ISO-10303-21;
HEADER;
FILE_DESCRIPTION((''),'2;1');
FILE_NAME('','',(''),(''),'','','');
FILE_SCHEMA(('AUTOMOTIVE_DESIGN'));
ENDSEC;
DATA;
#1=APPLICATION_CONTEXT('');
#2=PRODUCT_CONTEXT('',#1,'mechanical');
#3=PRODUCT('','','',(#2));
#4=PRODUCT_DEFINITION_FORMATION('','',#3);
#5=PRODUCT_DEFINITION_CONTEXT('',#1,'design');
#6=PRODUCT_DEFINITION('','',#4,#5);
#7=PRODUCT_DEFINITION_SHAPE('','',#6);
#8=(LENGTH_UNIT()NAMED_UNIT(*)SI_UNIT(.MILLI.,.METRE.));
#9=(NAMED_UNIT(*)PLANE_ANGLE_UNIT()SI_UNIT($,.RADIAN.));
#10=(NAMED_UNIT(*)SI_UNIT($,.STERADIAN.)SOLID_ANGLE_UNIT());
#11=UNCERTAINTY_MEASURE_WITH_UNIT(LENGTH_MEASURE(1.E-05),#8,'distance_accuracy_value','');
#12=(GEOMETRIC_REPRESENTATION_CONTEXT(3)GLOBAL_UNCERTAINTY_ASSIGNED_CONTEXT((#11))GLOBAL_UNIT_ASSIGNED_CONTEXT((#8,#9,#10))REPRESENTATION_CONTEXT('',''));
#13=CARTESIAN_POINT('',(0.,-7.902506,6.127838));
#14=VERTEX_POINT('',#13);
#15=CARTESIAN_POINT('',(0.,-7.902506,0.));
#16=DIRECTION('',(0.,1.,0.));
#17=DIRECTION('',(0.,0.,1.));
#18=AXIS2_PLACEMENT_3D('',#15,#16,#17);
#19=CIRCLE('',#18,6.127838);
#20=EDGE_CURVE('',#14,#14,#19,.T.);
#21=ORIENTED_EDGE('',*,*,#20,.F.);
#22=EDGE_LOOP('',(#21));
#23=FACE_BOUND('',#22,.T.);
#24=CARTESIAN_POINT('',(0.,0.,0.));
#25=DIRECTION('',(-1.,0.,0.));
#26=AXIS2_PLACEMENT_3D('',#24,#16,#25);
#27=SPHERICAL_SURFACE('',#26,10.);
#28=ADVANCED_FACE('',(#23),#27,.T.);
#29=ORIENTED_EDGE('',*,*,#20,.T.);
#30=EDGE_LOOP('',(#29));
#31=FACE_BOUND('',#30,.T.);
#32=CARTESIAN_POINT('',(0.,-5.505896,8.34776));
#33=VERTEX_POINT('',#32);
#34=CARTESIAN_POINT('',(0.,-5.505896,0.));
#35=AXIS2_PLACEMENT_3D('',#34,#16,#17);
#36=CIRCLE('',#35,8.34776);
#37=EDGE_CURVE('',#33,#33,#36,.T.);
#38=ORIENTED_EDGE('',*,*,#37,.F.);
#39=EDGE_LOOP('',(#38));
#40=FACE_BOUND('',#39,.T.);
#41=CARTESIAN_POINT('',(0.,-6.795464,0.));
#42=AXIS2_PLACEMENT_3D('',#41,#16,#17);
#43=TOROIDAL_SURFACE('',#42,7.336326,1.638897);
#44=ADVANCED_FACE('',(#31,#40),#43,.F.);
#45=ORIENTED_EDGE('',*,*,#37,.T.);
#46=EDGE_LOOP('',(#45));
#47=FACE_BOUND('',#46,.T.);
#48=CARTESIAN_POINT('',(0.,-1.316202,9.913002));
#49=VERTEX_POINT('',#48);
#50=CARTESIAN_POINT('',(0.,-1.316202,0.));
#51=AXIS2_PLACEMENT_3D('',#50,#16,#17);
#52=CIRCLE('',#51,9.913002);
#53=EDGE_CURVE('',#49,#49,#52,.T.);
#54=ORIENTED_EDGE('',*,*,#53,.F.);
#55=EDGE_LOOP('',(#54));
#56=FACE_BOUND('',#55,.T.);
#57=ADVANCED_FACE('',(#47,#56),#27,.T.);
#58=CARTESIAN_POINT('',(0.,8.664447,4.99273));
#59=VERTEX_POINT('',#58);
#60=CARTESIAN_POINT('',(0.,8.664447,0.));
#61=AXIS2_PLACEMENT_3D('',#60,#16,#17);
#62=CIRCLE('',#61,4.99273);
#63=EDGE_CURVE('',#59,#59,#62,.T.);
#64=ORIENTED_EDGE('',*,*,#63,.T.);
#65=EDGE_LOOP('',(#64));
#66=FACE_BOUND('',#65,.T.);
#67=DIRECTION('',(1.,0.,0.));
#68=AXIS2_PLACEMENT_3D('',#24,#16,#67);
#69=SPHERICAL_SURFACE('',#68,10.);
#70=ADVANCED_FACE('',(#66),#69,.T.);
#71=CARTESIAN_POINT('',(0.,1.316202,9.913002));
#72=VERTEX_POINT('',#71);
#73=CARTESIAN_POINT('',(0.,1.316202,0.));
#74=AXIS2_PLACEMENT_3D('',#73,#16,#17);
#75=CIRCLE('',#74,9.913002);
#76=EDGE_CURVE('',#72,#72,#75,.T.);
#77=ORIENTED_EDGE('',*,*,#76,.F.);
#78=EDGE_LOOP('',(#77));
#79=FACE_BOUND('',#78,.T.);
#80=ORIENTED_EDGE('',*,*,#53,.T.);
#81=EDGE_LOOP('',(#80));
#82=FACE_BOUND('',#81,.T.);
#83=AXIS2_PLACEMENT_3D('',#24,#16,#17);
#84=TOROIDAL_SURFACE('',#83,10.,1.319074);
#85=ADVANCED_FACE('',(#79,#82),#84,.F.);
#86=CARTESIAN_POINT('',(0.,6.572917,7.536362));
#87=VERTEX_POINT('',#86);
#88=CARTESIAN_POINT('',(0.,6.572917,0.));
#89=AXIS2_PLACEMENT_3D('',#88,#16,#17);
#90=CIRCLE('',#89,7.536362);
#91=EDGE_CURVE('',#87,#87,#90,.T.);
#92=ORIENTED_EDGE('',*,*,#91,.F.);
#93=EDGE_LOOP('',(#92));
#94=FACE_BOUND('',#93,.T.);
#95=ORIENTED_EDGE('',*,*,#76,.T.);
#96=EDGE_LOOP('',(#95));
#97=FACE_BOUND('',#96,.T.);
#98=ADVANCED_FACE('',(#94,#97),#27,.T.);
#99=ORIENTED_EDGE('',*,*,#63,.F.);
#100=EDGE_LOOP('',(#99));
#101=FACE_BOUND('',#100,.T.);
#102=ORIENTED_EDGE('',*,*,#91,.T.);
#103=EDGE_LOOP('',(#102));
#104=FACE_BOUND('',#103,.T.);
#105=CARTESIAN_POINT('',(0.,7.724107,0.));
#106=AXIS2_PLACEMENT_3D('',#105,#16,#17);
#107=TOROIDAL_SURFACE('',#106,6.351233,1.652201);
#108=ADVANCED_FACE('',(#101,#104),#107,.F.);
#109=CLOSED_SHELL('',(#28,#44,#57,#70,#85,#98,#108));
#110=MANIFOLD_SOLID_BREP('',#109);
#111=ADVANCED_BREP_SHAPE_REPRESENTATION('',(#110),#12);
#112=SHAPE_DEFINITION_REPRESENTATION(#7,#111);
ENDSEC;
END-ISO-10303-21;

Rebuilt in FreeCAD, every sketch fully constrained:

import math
import FreeCAD as App
import Part
import Sketcher
from FreeCAD import Vector
Q = App.Units.Quantity

doc = App.newDocument("Part")
params = doc.addObject("Spreadsheet::Sheet", "Params")
for row, (alias, value) in enumerate([
    ("sketch1_radius", "10 mm"),
    ("revolution_angle", "360 deg"),
], start=1):
    params.set(f"A{row}", alias)
    params.set(f"B{row}", "=" + value)
    params.setAlias(f"B{row}", alias)

body = doc.addObject("PartDesign::Body", "Body")

sketch1 = body.newObject("Sketcher::SketchObject", "Sketch")
sketch1.AttachmentSupport = (doc.getObject("XY_Plane"), [""])
sketch1.MapMode = "FlatFace"
sketch1.addGeometry(Part.LineSegment(Vector(0, -10, 0), Vector(0, 10, 0)), False)
sketch1.addGeometry(Part.ArcOfCircle(Part.Circle(Vector(0, 0, 0), Vector(0, 0, 1), 10), math.radians(90), math.radians(120)), False)
sketch1.addGeometry(Part.ArcOfCircle(Part.Circle(Vector(-6.4, 7.7, 0), Vector(0, 0, 1), 1.7), math.radians(-136), math.radians(35)), False)
sketch1.addGeometry(Part.ArcOfCircle(Part.Circle(Vector(0, 0, 0), Vector(0, 0, 1), 10), math.radians(139), math.radians(172)), False)
sketch1.addGeometry(Part.ArcOfCircle(Part.Circle(Vector(-10, 0, 0), Vector(0, 0, 1), 1.3), math.radians(-86), math.radians(86)), False)
sketch1.addGeometry(Part.ArcOfCircle(Part.Circle(Vector(0, 0, 0), Vector(0, 0, 1), 10), math.radians(-172), math.radians(-147)), False)
sketch1.addGeometry(Part.ArcOfCircle(Part.Circle(Vector(-7.3, -6.8, 0), Vector(0, 0, 1), 1.6), math.radians(-42), math.radians(128)), False)
sketch1.addGeometry(Part.ArcOfCircle(Part.Circle(Vector(0, 0, 0), Vector(0, 0, 1), 10), math.radians(-128), math.radians(-90)), False)
sketch1.addConstraint(Sketcher.Constraint("Coincident", 0, 2, 1, 1))
sketch1.addConstraint(Sketcher.Constraint("Coincident", 1, 2, 2, 2))
sketch1.addConstraint(Sketcher.Constraint("Coincident", 2, 1, 3, 1))
sketch1.addConstraint(Sketcher.Constraint("Coincident", 3, 2, 4, 2))
sketch1.addConstraint(Sketcher.Constraint("Coincident", 4, 1, 5, 1))
sketch1.addConstraint(Sketcher.Constraint("Coincident", 5, 2, 6, 2))
sketch1.addConstraint(Sketcher.Constraint("Coincident", 6, 1, 7, 1))
sketch1.addConstraint(Sketcher.Constraint("Coincident", 7, 2, 0, 1))
sketch1.addConstraint(Sketcher.Constraint("Vertical", 0))
sketch1.addConstraint(Sketcher.Constraint("Coincident", 1, 3, -1, 1))
sketch1.addConstraint(Sketcher.Constraint("Coincident", 3, 3, -1, 1))
sketch1.addConstraint(Sketcher.Constraint("Coincident", 5, 3, -1, 1))
sketch1.addConstraint(Sketcher.Constraint("Coincident", 7, 3, -1, 1))
sketch1.addConstraint(Sketcher.Constraint("Equal", 1, 3))
sketch1.addConstraint(Sketcher.Constraint("Equal", 3, 5))
sketch1.addConstraint(Sketcher.Constraint("Equal", 5, 7))
sketch1.addConstraint(Sketcher.Constraint("PointOnObject", 4, 3, -1))
sketch1.addConstraint(Sketcher.Constraint("PointOnObject", 0, 2, -2))
sketch1.addConstraint(Sketcher.Constraint("Radius", 1, Q("10 mm")))
sketch1.addConstraint(Sketcher.Constraint("DistanceX", 4, 3, -1, 1, Q("10 mm")))
sketch1.addConstraint(Sketcher.Constraint("Radius", 2, Q("1.652201 mm")))
sketch1.addConstraint(Sketcher.Constraint("Radius", 4, Q("1.319074 mm")))
sketch1.addConstraint(Sketcher.Constraint("Radius", 6, Q("1.638897 mm")))
sketch1.addConstraint(Sketcher.Constraint("DistanceY", 5, 2, 3, 2, Q("6.822098 mm")))
sketch1.addConstraint(Sketcher.Constraint("DistanceX", 1, 2, -1, 1, Q("4.99273 mm")))
sketch1.addConstraint(Sketcher.Constraint("DistanceX", 6, 1, -1, 1, Q("6.127838 mm")))
sketch1.addConstraint(Sketcher.Constraint("DistanceY", 6, 3, 2, 3, Q("14.519571 mm")))
sketch1.setExpression("Constraints[18]", "Params.sketch1_radius")
revolution = body.newObject("PartDesign::Revolution", "Revolution")
revolution.Profile = sketch1
revolution.ReferenceAxis = (sketch1, ["V_Axis"])
revolution.setExpression("Angle", "Params.revolution_angle")

doc.recompute()
